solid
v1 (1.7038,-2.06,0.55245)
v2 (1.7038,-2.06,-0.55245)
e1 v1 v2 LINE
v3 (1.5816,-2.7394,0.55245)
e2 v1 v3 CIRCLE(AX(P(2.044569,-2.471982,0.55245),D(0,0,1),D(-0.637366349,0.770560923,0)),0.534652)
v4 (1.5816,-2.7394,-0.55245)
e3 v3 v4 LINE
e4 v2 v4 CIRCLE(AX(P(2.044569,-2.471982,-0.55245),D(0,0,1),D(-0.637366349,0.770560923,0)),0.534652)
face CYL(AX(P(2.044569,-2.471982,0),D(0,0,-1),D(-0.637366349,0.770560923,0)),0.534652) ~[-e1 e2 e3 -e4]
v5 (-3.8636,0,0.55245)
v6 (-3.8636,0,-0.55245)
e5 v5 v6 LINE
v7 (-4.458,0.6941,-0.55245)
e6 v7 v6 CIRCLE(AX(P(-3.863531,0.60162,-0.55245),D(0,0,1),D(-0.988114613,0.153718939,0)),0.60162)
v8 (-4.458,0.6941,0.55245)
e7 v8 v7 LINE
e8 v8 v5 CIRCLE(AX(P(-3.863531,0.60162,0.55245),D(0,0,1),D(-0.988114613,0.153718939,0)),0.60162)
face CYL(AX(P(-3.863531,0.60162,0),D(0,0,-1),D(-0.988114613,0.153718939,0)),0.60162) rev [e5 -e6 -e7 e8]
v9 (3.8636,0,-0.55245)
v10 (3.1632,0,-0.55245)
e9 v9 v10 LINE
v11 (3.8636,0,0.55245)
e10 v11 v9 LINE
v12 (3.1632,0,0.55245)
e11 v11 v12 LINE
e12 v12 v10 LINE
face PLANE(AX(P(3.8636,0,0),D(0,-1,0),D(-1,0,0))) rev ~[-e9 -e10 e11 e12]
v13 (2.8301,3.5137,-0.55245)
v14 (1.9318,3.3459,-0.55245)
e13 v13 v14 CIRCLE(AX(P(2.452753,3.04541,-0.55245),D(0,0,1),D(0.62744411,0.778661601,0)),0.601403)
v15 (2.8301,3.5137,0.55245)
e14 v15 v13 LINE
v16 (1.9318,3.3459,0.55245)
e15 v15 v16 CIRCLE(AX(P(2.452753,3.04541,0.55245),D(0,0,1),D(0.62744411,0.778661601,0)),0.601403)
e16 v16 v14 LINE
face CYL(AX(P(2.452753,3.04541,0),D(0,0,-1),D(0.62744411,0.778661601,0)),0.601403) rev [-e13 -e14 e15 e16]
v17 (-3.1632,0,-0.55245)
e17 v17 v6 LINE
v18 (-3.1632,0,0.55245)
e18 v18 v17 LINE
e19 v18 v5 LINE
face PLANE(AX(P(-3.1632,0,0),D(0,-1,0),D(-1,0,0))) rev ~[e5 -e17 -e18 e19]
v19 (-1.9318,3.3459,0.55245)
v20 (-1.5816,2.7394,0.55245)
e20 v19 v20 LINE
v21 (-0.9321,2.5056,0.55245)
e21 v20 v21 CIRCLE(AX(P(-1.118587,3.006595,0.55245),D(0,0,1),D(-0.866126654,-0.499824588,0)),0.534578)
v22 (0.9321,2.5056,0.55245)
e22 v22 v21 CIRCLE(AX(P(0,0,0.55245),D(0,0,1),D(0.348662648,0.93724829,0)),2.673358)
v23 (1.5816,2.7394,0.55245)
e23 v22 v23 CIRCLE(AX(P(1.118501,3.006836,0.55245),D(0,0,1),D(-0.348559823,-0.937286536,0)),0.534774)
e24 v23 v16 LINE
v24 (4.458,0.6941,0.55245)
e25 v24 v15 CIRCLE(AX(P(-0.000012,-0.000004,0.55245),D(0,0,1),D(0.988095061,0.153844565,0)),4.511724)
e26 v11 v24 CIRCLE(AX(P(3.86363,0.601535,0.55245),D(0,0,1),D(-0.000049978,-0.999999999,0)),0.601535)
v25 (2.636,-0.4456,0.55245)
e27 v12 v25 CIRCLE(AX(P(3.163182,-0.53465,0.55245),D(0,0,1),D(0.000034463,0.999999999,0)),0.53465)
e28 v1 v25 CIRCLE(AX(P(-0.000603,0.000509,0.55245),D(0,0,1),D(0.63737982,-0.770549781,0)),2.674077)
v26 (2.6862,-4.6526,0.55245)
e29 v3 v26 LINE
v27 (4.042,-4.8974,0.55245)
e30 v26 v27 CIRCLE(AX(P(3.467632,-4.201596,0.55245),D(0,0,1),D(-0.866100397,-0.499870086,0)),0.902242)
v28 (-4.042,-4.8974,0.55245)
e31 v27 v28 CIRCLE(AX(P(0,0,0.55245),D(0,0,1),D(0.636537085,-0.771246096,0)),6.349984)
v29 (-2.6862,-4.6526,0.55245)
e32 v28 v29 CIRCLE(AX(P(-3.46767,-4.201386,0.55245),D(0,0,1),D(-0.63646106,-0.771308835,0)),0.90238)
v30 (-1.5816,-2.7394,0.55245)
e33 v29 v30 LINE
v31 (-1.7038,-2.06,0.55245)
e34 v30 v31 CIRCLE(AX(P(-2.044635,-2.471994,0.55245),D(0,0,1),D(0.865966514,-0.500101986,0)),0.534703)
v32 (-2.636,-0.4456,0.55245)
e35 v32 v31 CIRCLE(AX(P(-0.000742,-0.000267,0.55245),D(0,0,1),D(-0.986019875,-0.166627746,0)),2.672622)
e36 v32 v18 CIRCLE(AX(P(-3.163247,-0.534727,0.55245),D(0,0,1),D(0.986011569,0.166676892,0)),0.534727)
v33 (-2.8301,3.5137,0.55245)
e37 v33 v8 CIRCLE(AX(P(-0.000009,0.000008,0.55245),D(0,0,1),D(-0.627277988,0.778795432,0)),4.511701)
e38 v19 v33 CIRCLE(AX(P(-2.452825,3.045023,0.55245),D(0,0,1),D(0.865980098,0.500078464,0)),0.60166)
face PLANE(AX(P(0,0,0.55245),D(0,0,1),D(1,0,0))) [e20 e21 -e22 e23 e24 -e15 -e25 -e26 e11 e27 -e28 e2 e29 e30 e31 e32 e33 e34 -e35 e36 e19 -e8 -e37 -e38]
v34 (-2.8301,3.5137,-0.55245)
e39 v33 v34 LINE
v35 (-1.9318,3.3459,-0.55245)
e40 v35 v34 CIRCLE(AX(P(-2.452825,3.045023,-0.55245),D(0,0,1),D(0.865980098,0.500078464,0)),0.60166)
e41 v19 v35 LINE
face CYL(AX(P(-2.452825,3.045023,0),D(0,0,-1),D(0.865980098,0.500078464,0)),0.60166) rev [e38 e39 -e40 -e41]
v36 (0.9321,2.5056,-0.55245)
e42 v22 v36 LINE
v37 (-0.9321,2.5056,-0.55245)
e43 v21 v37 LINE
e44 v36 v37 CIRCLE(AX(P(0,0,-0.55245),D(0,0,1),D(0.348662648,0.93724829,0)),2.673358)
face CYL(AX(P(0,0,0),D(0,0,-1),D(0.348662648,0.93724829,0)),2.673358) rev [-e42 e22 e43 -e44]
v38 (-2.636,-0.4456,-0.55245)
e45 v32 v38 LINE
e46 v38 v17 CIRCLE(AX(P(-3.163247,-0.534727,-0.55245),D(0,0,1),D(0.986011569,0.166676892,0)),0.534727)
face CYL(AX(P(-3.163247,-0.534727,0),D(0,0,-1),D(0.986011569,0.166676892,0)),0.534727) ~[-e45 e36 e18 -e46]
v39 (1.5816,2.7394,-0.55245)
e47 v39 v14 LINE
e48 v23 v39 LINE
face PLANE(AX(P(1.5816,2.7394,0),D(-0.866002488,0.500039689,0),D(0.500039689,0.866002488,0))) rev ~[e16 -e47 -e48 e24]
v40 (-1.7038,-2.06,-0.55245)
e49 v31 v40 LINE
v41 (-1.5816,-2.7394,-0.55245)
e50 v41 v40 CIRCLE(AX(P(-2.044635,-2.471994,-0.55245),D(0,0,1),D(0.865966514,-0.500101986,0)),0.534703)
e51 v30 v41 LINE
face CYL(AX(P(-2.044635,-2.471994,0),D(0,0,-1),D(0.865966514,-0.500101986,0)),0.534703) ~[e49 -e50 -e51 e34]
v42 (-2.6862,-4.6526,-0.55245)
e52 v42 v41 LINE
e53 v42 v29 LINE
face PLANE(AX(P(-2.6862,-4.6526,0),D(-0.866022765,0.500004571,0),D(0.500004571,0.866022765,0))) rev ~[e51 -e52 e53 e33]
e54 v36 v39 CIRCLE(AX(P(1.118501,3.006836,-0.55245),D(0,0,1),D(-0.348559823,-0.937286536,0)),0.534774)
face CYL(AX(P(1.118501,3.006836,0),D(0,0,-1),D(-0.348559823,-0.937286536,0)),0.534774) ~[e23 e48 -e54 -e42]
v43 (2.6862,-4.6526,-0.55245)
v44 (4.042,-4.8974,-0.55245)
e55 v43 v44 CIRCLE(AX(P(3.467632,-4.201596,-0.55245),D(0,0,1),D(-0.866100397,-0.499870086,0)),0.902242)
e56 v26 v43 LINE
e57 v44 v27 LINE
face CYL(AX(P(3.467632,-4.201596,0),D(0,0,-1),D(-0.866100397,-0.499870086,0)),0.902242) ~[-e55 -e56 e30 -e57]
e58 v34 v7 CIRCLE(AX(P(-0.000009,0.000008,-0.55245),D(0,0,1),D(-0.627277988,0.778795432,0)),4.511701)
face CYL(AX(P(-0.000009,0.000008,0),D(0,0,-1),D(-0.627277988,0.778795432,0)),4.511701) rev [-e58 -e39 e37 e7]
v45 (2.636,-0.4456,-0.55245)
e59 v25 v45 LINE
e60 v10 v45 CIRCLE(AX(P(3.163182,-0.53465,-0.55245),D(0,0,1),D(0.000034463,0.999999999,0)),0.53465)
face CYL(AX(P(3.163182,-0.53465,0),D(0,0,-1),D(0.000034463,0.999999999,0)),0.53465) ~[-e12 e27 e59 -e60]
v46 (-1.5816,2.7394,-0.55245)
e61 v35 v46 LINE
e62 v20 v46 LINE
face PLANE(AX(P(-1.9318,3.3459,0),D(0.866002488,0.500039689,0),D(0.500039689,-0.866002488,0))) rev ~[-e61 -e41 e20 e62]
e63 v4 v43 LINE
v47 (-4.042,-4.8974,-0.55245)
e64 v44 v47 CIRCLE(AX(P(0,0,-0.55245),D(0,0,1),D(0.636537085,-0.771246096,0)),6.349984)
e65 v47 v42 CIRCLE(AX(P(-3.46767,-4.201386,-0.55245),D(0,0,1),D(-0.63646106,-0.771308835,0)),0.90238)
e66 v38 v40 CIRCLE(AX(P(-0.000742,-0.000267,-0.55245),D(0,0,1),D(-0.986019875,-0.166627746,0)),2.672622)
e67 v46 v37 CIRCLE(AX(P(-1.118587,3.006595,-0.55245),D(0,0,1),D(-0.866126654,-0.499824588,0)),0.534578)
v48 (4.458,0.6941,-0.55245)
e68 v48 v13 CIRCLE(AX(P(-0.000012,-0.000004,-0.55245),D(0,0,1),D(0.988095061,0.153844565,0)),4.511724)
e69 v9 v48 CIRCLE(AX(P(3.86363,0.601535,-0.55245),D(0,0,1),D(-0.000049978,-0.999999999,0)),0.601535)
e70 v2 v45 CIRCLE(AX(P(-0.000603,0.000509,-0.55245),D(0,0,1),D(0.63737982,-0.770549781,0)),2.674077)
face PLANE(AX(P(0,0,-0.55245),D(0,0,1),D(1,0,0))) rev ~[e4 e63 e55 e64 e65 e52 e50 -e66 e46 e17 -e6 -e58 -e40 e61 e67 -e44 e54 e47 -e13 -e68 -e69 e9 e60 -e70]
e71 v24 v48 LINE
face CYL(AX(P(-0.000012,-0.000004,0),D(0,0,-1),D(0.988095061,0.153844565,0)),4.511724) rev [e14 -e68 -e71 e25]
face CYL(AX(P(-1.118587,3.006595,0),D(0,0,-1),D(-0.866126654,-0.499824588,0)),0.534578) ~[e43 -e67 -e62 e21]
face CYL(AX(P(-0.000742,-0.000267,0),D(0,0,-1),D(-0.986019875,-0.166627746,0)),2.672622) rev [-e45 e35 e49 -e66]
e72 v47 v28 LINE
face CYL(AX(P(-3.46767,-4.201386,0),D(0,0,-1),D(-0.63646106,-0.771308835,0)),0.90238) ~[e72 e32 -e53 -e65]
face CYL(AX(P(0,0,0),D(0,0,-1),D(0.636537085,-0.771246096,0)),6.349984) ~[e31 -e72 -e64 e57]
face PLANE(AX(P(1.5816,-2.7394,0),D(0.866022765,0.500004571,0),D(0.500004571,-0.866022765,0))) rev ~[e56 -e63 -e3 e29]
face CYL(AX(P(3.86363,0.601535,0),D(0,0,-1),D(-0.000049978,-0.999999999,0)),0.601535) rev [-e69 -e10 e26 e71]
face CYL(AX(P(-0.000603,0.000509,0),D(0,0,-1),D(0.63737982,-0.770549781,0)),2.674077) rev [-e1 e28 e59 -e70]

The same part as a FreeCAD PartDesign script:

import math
import FreeCAD as App
import Part
import Sketcher
from FreeCAD import Vector
Q = App.Units.Quantity

doc = App.newDocument("Part")
params = doc.addObject("Spreadsheet::Sheet", "Params")
for row, (alias, value) in enumerate([
    ("sketch1_radius", "0.25 in"),
    ("pad1_length", "0.0435 in"),
], start=1):
    params.set(f"A{row}", alias)
    params.set(f"B{row}", "=" + value)
    params.setAlias(f"B{row}", alias)

body = doc.addObject("PartDesign::Body", "Body")

# Sketch on XY plane
sketch1 = body.newObject("Sketcher::SketchObject", "Sketch")
sketch1.AttachmentSupport = (doc.getObject("XY_Plane"), [""])
sketch1.MapMode = "FlatFace"
sketch1.addGeometry([
    Part.ArcOfCircle(Part.Circle(Vector(3.5, -4.2, 0), Vector(0, 0, 1), 0.9), math.radians(-150), math.radians(-50)),  # 0
    Part.ArcOfCircle(Part.Circle(Vector(0, 0, 0), Vector(0, 0, 1), 6.3), math.radians(-50), math.radians(230)),  # 1
    Part.ArcOfCircle(Part.Circle(Vector(-3.5, -4.2, 0), Vector(0, 0, 1), 0.9), math.radians(-130), math.radians(-30)),  # 2
    Part.LineSegment(Vector(-2.7, -4.7, 0), Vector(-1.6, -2.7, 0)),  # 3
    Part.ArcOfCircle(Part.Circle(Vector(-2, -2.5, 0), Vector(0, 0, 1), 0.5), math.radians(-30), math.radians(50)),  # 4
    Part.ArcOfCircle(Part.Circle(Vector(0, 0, 0), Vector(0, 0, 1), 2.7), math.radians(-170), math.radians(-130)),  # 5
    Part.ArcOfCircle(Part.Circle(Vector(-3.2, -0.5, 0), Vector(0, 0, 1), 0.5), math.radians(10), math.radians(90)),  # 6
    Part.LineSegment(Vector(-3.2, 0, 0), Vector(-3.9, 0, 0)),  # 7
    Part.ArcOfCircle(Part.Circle(Vector(-3.9, 0.6, 0), Vector(0, 0, 1), 0.6), math.radians(171), math.radians(270)),  # 8
    Part.ArcOfCircle(Part.Circle(Vector(0, 0, 0), Vector(0, 0, 1), 4.5), math.radians(129), math.radians(171)),  # 9
    Part.ArcOfCircle(Part.Circle(Vector(-2.5, 3, 0), Vector(0, 0, 1), 0.6), math.radians(30), math.radians(129)),  # 10
    Part.LineSegment(Vector(-1.9, 3.3, 0), Vector(-1.6, 2.7, 0)),  # 11
    Part.ArcOfCircle(Part.Circle(Vector(-1.1, 3, 0), Vector(0, 0, 1), 0.5), math.radians(-150), math.radians(-70)),  # 12
    Part.ArcOfCircle(Part.Circle(Vector(0, 0, 0), Vector(0, 0, 1), 2.7), math.radians(70), math.radians(110)),  # 13
    Part.ArcOfCircle(Part.Circle(Vector(1.1, 3, 0), Vector(0, 0, 1), 0.5), math.radians(-110), math.radians(-30)),  # 14
    Part.LineSegment(Vector(1.6, 2.7, 0), Vector(1.9, 3.3, 0)),  # 15
    Part.ArcOfCircle(Part.Circle(Vector(2.5, 3, 0), Vector(0, 0, 1), 0.6), math.radians(51), math.radians(150)),  # 16
    Part.ArcOfCircle(Part.Circle(Vector(0, 0, 0), Vector(0, 0, 1), 4.5), math.radians(9), math.radians(51)),  # 17
    Part.ArcOfCircle(Part.Circle(Vector(3.9, 0.6, 0), Vector(0, 0, 1), 0.6), math.radians(-90), math.radians(9)),  # 18
    Part.LineSegment(Vector(3.9, 0, 0), Vector(3.2, 0, 0)),  # 19
    Part.ArcOfCircle(Part.Circle(Vector(3.2, -0.5, 0), Vector(0, 0, 1), 0.5), math.radians(90), math.radians(170)),  # 20
    Part.ArcOfCircle(Part.Circle(Vector(0, 0, 0), Vector(0, 0, 1), 2.7), math.radians(-50), math.radians(-10)),  # 21
    Part.ArcOfCircle(Part.Circle(Vector(2, -2.5, 0), Vector(0, 0, 1), 0.5), math.radians(130), math.radians(210)),  # 22
    Part.LineSegment(Vector(1.6, -2.7, 0), Vector(2.7, -4.7, 0)),  # 23
], False)
sketch1.addConstraint([
    Sketcher.Constraint("Tangent", 0, 2, 1, 1),
    Sketcher.Constraint("Tangent", 1, 2, 2, 1),
    Sketcher.Constraint("Tangent", 2, 2, 3, 1),
    Sketcher.Constraint("Tangent", 3, 2, 4, 1),
    Sketcher.Constraint("Tangent", 4, 2, 5, 2),
    Sketcher.Constraint("Tangent", 5, 1, 6, 1),
    Sketcher.Constraint("Tangent", 6, 2, 7, 1),
    Sketcher.Constraint("Tangent", 7, 2, 8, 2),
    Sketcher.Constraint("Tangent", 8, 1, 9, 2),
    Sketcher.Constraint("Tangent", 9, 1, 10, 2),
    Sketcher.Constraint("Tangent", 10, 1, 11, 1),
    Sketcher.Constraint("Tangent", 11, 2, 12, 1),
    Sketcher.Constraint("Tangent", 12, 2, 13, 2),
    Sketcher.Constraint("Tangent", 13, 1, 14, 1),
    Sketcher.Constraint("Tangent", 14, 2, 15, 1),
    Sketcher.Constraint("Tangent", 15, 2, 16, 2),
    Sketcher.Constraint("Tangent", 16, 1, 17, 2),
    Sketcher.Constraint("Tangent", 17, 1, 18, 2),
    Sketcher.Constraint("Tangent", 18, 1, 19, 1),
    Sketcher.Constraint("Tangent", 19, 2, 20, 1),
    Sketcher.Constraint("Tangent", 20, 2, 21, 2),
    Sketcher.Constraint("Tangent", 21, 1, 22, 1),
    Sketcher.Constraint("Tangent", 22, 2, 23, 1),
    Sketcher.Constraint("Tangent", 23, 2, 0, 1),
    Sketcher.Constraint("Horizontal", 7),
    Sketcher.Constraint("Horizontal", 19),
    Sketcher.Constraint("Coincident", 1, 3, -1, 1),
    Sketcher.Constraint("Coincident", 5, 3, -1, 1),
    Sketcher.Constraint("Coincident", 9, 3, -1, 1),
    Sketcher.Constraint("Coincident", 13, 3, -1, 1),
    Sketcher.Constraint("Coincident", 17, 3, -1, 1),
    Sketcher.Constraint("Coincident", 21, 3, -1, 1),
    Sketcher.Constraint("Equal", 0, 2),
    Sketcher.Constraint("Equal", 4, 6),
    Sketcher.Constraint("Equal", 8, 10),
    Sketcher.Constraint("Equal", 6, 12),
    Sketcher.Constraint("Equal", 5, 13),
    Sketcher.Constraint("Equal", 12, 14),
    Sketcher.Constraint("Equal", 10, 16),
    Sketcher.Constraint("Equal", 9, 17),
    Sketcher.Constraint("Equal", 16, 18),
    Sketcher.Constraint("Equal", 14, 20),
    Sketcher.Constraint("Equal", 13, 21),
    Sketcher.Constraint("Equal", 20, 22),
    Sketcher.Constraint("Symmetric", 3, 2, 14, 2, -1, 1),
    Sketcher.Constraint("Symmetric", 7, 2, 18, 1, -1, 1),
    Sketcher.Constraint("Symmetric", 11, 2, 22, 2, -1, 1),
    Sketcher.Constraint("Symmetric", 11, 2, 14, 2, -2),
    Sketcher.Constraint("Parallel", 3, 15),
    Sketcher.Constraint("Radius", 1, Q("0.25 in")),
    Sketcher.Constraint("Angle", 3, Q("59.9997 deg")),
    Sketcher.Constraint("Radius", 0, Q("0.9023 mm")),
    Sketcher.Constraint("Radius", 4, Q("0.5347 mm")),
    Sketcher.Constraint("Radius", 5, Q("2.6733 mm")),
    Sketcher.Constraint("Radius", 8, Q("0.6016 mm")),
    Sketcher.Constraint("Radius", 9, Q("4.5117 mm")),
])
sketch1.setExpression("Constraints[49]", "Params.sketch1_radius")
pad1 = body.newObject("PartDesign::Pad", "Pad")
pad1.Profile = sketch1
pad1.setExpression("Length", "Params.pad1_length")
pad1.Midplane = True

doc.recompute()
